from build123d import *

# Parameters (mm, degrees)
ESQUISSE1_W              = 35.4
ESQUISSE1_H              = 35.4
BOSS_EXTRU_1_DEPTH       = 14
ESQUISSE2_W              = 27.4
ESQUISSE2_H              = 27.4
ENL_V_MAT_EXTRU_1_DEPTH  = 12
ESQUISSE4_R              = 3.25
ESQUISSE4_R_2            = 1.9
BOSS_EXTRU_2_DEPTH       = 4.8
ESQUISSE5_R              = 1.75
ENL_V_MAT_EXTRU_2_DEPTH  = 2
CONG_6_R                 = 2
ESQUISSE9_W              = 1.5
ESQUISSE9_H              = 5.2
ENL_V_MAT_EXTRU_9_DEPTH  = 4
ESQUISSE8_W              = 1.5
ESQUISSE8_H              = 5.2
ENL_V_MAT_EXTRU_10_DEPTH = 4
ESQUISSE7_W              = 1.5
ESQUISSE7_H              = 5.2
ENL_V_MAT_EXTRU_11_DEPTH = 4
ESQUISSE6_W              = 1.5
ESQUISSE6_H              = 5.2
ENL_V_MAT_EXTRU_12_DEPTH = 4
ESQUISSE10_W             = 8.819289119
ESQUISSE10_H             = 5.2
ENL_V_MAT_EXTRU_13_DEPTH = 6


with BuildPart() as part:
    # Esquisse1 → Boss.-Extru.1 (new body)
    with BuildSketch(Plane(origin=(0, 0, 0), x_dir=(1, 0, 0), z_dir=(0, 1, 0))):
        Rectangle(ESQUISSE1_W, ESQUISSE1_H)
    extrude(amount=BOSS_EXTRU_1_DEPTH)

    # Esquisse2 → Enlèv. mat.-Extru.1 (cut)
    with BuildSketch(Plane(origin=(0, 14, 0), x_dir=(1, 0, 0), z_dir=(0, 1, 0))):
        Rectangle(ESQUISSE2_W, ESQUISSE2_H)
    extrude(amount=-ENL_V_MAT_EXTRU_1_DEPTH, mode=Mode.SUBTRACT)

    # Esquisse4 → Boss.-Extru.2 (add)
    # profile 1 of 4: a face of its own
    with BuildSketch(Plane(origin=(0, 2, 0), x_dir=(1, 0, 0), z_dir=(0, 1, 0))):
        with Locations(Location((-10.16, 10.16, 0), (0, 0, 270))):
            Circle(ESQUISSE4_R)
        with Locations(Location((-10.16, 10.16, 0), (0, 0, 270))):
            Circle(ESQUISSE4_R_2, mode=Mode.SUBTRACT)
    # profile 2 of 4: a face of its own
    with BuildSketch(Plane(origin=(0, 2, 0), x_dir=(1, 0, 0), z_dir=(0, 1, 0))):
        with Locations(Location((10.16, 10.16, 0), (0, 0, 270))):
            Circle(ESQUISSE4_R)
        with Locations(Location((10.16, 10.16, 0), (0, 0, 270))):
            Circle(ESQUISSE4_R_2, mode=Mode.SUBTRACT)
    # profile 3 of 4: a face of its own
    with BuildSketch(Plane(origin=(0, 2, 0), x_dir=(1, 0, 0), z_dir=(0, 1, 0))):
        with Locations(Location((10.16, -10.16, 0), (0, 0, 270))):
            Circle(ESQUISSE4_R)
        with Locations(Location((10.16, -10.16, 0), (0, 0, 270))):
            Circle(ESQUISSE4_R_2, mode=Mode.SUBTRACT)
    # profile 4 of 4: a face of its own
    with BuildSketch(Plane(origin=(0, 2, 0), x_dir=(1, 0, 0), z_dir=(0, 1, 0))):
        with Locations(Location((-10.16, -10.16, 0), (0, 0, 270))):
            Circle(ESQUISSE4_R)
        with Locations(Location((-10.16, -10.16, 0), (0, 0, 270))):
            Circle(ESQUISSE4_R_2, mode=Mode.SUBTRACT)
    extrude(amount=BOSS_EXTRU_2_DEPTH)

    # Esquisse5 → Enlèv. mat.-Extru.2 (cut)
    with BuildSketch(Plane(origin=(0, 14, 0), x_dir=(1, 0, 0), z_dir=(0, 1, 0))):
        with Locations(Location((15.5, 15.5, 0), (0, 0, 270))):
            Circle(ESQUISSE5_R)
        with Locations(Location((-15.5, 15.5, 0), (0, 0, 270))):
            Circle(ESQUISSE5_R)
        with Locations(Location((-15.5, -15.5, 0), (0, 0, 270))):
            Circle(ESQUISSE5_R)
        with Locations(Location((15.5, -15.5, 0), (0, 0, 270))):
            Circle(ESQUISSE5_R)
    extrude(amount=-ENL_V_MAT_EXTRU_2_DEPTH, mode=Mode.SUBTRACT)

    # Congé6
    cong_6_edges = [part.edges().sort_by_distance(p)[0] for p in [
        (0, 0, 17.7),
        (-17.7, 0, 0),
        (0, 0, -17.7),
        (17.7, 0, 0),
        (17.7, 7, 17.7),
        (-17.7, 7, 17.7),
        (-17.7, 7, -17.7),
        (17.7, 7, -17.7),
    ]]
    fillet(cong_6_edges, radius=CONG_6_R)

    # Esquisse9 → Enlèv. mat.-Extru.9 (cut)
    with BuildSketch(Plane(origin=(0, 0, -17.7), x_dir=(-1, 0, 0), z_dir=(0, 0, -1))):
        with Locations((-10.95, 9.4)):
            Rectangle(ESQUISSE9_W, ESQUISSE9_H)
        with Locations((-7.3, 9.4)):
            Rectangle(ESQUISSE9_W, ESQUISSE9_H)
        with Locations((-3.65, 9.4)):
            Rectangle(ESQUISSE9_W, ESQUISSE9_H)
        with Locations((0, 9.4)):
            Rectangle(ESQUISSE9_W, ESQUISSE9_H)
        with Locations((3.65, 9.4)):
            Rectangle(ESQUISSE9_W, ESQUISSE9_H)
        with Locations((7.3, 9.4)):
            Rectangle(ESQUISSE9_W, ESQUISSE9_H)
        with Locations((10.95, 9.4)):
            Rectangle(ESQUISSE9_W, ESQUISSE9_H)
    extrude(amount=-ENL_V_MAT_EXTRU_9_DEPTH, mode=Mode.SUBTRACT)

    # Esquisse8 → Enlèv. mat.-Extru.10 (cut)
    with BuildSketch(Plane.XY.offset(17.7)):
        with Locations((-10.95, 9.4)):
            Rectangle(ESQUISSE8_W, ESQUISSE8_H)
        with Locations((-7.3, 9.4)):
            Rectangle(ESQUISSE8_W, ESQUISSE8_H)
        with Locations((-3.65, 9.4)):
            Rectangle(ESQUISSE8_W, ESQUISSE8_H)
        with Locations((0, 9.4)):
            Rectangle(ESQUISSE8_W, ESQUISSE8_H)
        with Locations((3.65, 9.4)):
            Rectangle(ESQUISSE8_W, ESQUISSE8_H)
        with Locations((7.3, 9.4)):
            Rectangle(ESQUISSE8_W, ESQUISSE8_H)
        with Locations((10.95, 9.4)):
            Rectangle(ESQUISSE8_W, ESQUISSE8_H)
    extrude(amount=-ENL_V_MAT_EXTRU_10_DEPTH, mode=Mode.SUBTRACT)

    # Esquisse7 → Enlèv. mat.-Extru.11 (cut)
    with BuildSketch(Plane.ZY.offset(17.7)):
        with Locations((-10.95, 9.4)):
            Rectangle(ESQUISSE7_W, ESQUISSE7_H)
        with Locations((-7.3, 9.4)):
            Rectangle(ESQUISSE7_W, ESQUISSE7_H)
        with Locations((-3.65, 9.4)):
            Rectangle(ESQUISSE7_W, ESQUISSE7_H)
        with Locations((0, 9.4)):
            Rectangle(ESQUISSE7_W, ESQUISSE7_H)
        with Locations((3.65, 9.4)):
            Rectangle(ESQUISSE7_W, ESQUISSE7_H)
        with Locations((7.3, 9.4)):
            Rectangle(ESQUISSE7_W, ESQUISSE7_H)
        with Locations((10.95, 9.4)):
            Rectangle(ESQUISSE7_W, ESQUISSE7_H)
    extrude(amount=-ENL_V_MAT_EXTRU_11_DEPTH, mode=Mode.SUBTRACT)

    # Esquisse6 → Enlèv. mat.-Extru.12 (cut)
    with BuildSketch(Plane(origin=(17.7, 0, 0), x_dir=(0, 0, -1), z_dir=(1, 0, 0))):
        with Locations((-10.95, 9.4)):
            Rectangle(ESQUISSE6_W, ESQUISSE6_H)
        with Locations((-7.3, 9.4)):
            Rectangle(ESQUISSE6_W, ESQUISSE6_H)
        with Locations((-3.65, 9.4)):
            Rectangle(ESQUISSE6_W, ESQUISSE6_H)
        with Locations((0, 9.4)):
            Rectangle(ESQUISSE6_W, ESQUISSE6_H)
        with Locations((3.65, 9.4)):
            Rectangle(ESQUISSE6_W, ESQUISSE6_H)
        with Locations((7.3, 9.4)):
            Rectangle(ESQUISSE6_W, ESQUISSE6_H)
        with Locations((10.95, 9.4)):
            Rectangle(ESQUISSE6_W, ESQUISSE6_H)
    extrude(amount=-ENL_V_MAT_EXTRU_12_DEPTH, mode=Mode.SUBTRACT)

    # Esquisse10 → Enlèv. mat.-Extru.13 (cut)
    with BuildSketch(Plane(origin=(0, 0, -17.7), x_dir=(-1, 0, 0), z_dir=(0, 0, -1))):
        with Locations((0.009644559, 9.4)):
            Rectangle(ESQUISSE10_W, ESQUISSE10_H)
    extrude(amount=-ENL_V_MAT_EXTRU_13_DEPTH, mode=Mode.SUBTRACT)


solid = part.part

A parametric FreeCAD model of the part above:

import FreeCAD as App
import Part
import Sketcher
from FreeCAD import Vector
Q = App.Units.Quantity


def edges_at(feature, points):
    """Names of the edges that pass closest to the given points."""
    edges = feature.Shape.Edges
    near = lambda p: min(range(len(edges)), key=lambda i: edges[i].distToShape(Part.Vertex(*p))[0])
    return sorted({f"Edge{near(p) + 1}" for p in points})

doc = App.newDocument("Part")
body = doc.addObject("PartDesign::Body", "Body")

# Sketch on XZ plane
sketch1 = body.newObject("Sketcher::SketchObject", "Sketch")
sketch1.AttachmentSupport = (doc.getObject("XZ_Plane"), [""])
sketch1.MapMode = "FlatFace"
sketch1.addGeometry(Part.LineSegment(Vector(-17.7, -17.7, 0), Vector(-17.7, 17.7, 0)), False)
sketch1.addGeometry(Part.LineSegment(Vector(-17.7, 17.7, 0), Vector(17.7, 17.7, 0)), False)
sketch1.addGeometry(Part.LineSegment(Vector(17.7, 17.7, 0), Vector(17.7, -17.7, 0)), False)
sketch1.addGeometry(Part.LineSegment(Vector(17.7, -17.7, 0), Vector(-17.7, -17.7, 0)), False)
sketch1.addConstraint(Sketcher.Constraint("Coincident", 0, 2, 1, 1))
sketch1.addConstraint(Sketcher.Constraint("Coincident", 1, 2, 2, 1))
sketch1.addConstraint(Sketcher.Constraint("Coincident", 2, 2, 3, 1))
sketch1.addConstraint(Sketcher.Constraint("Coincident", 3, 2, 0, 1))
sketch1.addConstraint(Sketcher.Constraint("Vertical", 0))
sketch1.addConstraint(Sketcher.Constraint("Horizontal", 1))
sketch1.addConstraint(Sketcher.Constraint("Vertical", 2))
sketch1.addConstraint(Sketcher.Constraint("Horizontal", 3))
sketch1.addConstraint(Sketcher.Constraint("Symmetric", 0, 2, 2, 2, -1, 1))
sketch1.addConstraint(Sketcher.Constraint("Equal", 3, 0))
sketch1.addConstraint(Sketcher.Constraint("DistanceX", 1, 1, 1, 2, Q("35.4 mm")))
pad1 = body.newObject("PartDesign::Pad", "Pad")
pad1.Profile = sketch1
pad1.Length = 14
pad1.Reversed = True

# Sketch on XZ plane
sketch2 = body.newObject("Sketcher::SketchObject", "Sketch001")
sketch2.AttachmentSupport = (doc.getObject("XZ_Plane"), [""])
sketch2.MapMode = "FlatFace"
sketch2.AttachmentOffset = App.Placement(Vector(0, 0, -14), App.Rotation())
sketch2.addGeometry(Part.LineSegment(Vector(-13.7, -13.7, 0), Vector(-13.7, 13.7, 0)), False)
sketch2.addGeometry(Part.LineSegment(Vector(-13.7, 13.7, 0), Vector(13.7, 13.7, 0)), False)
sketch2.addGeometry(Part.LineSegment(Vector(13.7, 13.7, 0), Vector(13.7, -13.7, 0)), False)
sketch2.addGeometry(Part.LineSegment(Vector(13.7, -13.7, 0), Vector(-13.7, -13.7, 0)), False)
sketch2.addConstraint(Sketcher.Constraint("Coincident", 0, 2, 1, 1))
sketch2.addConstraint(Sketcher.Constraint("Coincident", 1, 2, 2, 1))
sketch2.addConstraint(Sketcher.Constraint("Coincident", 2, 2, 3, 1))
sketch2.addConstraint(Sketcher.Constraint("Coincident", 3, 2, 0, 1))
sketch2.addConstraint(Sketcher.Constraint("Vertical", 0))
sketch2.addConstraint(Sketcher.Constraint("Horizontal", 1))
sketch2.addConstraint(Sketcher.Constraint("Vertical", 2))
sketch2.addConstraint(Sketcher.Constraint("Horizontal", 3))
sketch2.addConstraint(Sketcher.Constraint("Symmetric", 0, 2, 2, 2, -1, 1))
sketch2.addConstraint(Sketcher.Constraint("Equal", 3, 0))
sketch2.addConstraint(Sketcher.Constraint("DistanceX", 1, 1, 1, 2, Q("27.4 mm")))
pocket1 = body.newObject("PartDesign::Pocket", "Pocket")
pocket1.Profile = sketch2
pocket1.Length = 12
pocket1.Reversed = True

# Sketch on XZ plane
sketch3 = body.newObject("Sketcher::SketchObject", "Sketch002")
sketch3.AttachmentSupport = (doc.getObject("XZ_Plane"), [""])
sketch3.MapMode = "FlatFace"
sketch3.AttachmentOffset = App.Placement(Vector(0, 0, -2), App.Rotation())
sketch3.addGeometry(Part.Circle(Vector(-10.16, -10.16, 0), Vector(0, 0, 1), 3.25), False)
sketch3.addGeometry(Part.Circle(Vector(-10.16, -10.16, 0), Vector(0, 0, 1), 1.9), False)
sketch3.addGeometry(Part.Circle(Vector(10.16, -10.16, 0), Vector(0, 0, 1), 3.25), False)
sketch3.addGeometry(Part.Circle(Vector(10.16, -10.16, 0), Vector(0, 0, 1), 1.9), False)
sketch3.addGeometry(Part.Circle(Vector(10.16, 10.16, 0), Vector(0, 0, 1), 3.25), False)
sketch3.addGeometry(Part.Circle(Vector(10.16, 10.16, 0), Vector(0, 0, 1), 1.9), False)
sketch3.addGeometry(Part.Circle(Vector(-10.16, 10.16, 0), Vector(0, 0, 1), 3.25), False)
sketch3.addGeometry(Part.Circle(Vector(-10.16, 10.16, 0), Vector(0, 0, 1), 1.9), False)
sketch3.addConstraint(Sketcher.Constraint("Coincident", 1, 3, 0, 3))
sketch3.addConstraint(Sketcher.Constraint("Coincident", 3, 3, 2, 3))
sketch3.addConstraint(Sketcher.Constraint("Coincident", 5, 3, 4, 3))
sketch3.addConstraint(Sketcher.Constraint("Coincident", 7, 3, 6, 3))
sketch3.addConstraint(Sketcher.Constraint("Equal", 0, 2))
sketch3.addConstraint(Sketcher.Constraint("Equal", 1, 3))
sketch3.addConstraint(Sketcher.Constraint("Equal", 2, 4))
sketch3.addConstraint(Sketcher.Constraint("Equal", 3, 5))
sketch3.addConstraint(Sketcher.Constraint("Equal", 4, 6))
sketch3.addConstraint(Sketcher.Constraint("Equal", 5, 7))
sketch3.addConstraint(Sketcher.Constraint("Symmetric", 0, 3, 4, 3, -1, 1))
sketch3.addConstraint(Sketcher.Constraint("Symmetric", 2, 3, 6, 3, -1, 1))
sketch3.addConstraint(Sketcher.Constraint("Symmetric", 0, 3, 2, 3, -2))
sketch3.addConstraint(Sketcher.Constraint("Diameter", 0, Q("6.5 mm")))
sketch3.addConstraint(Sketcher.Constraint("Diameter", 1, Q("3.8 mm")))
sketch3.addConstraint(Sketcher.Constraint("DistanceX", 0, 3, -1, 1, Q("10.16 mm")))
sketch3.addConstraint(Sketcher.Constraint("DistanceY", 0, 3, -1, 1, Q("10.16 mm")))
pad2 = body.newObject("PartDesign::Pad", "Pad001")
pad2.Profile = sketch3
pad2.Length = 4.8
pad2.Reversed = True

# Sketch on XZ plane
sketch4 = body.newObject("Sketcher::SketchObject", "Sketch003")
sketch4.AttachmentSupport = (doc.getObject("XZ_Plane"), [""])
sketch4.MapMode = "FlatFace"
sketch4.AttachmentOffset = App.Placement(Vector(0, 0, -14), App.Rotation())
sketch4.addGeometry(Part.Circle(Vector(15.5, -15.5, 0), Vector(0, 0, 1), 1.75), False)
sketch4.addGeometry(Part.Circle(Vector(-15.5, -15.5, 0), Vector(0, 0, 1), 1.75), False)
sketch4.addGeometry(Part.Circle(Vector(-15.5, 15.5, 0), Vector(0, 0, 1), 1.75), False)
sketch4.addGeometry(Part.Circle(Vector(15.5, 15.5, 0), Vector(0, 0, 1), 1.75), False)
sketch4.addConstraint(Sketcher.Constraint("Equal", 0, 1))
sketch4.addConstraint(Sketcher.Constraint("Equal", 1, 2))
sketch4.addConstraint(Sketcher.Constraint("Equal", 2, 3))
sketch4.addConstraint(Sketcher.Constraint("Symmetric", 0, 3, 2, 3, -1, 1))
sketch4.addConstraint(Sketcher.Constraint("Symmetric", 1, 3, 3, 3, -1, 1))
sketch4.addConstraint(Sketcher.Constraint("Symmetric", 0, 3, 1, 3, -2))
sketch4.addConstraint(Sketcher.Constraint("Diameter", 0, Q("3.5 mm")))
sketch4.addConstraint(Sketcher.Constraint("DistanceX", 1, 3, 0, 3, Q("31 mm")))
sketch4.addConstraint(Sketcher.Constraint("DistanceY", 1, 3, 2, 3, Q("31 mm")))
pocket2 = body.newObject("PartDesign::Pocket", "Pocket001")
pocket2.Profile = sketch4
pocket2.Length = 2
pocket2.Reversed = True
doc.recompute()

fillet = body.newObject("PartDesign::Fillet", "Fillet")
fillet.Base = (pocket2, edges_at(pocket2, [
    (0, 0, 17.7),
    (-17.7, 0, 0),
    (0, 0, -17.7),
    (17.7, 0, 0),
    (17.7, 7, 17.7),
    (-17.7, 7, 17.7),
    (-17.7, 7, -17.7),
    (17.7, 7, -17.7),
]))
fillet.Radius = 2

# Sketch on XY plane
sketch5 = body.newObject("Sketcher::SketchObject", "Sketch004")
sketch5.AttachmentSupport = (doc.getObject("XY_Plane"), [""])
sketch5.MapMode = "FlatFace"
sketch5.AttachmentOffset = App.Placement(Vector(0, 0, -17.7), App.Rotation())
sketch5.addGeometry(Part.LineSegment(Vector(11.7, 12, 0), Vector(11.7, 6.8, 0)), False)
sketch5.addGeometry(Part.LineSegment(Vector(11.7, 6.8, 0), Vector(10.2, 6.8, 0)), False)
sketch5.addGeometry(Part.LineSegment(Vector(10.2, 6.8, 0), Vector(10.2, 12, 0)), False)
sketch5.addGeometry(Part.LineSegment(Vector(10.2, 12, 0), Vector(11.7, 12, 0)), False)
sketch5.addGeometry(Part.LineSegment(Vector(8.05, 12, 0), Vector(8.05, 6.8, 0)), False)
sketch5.addGeometry(Part.LineSegment(Vector(8.05, 6.8, 0), Vector(6.55, 6.8, 0)), False)
sketch5.addGeometry(Part.LineSegment(Vector(6.55, 6.8, 0), Vector(6.55, 12, 0)), False)
sketch5.addGeometry(Part.LineSegment(Vector(6.55, 12, 0), Vector(8.05, 12, 0)), False)
sketch5.addGeometry(Part.LineSegment(Vector(4.4, 12, 0), Vector(4.4, 6.8, 0)), False)
sketch5.addGeometry(Part.LineSegment(Vector(4.4, 6.8, 0), Vector(2.9, 6.8, 0)), False)
sketch5.addGeometry(Part.LineSegment(Vector(2.9, 6.8, 0), Vector(2.9, 12, 0)), False)
sketch5.addGeometry(Part.LineSegment(Vector(2.9, 12, 0), Vector(4.4, 12, 0)), False)
sketch5.addGeometry(Part.LineSegment(Vector(0.75, 12, 0), Vector(0.75, 6.8, 0)), False)
sketch5.addGeometry(Part.LineSegment(Vector(0.75, 6.8, 0), Vector(-0.75, 6.8, 0)), False)
sketch5.addGeometry(Part.LineSegment(Vector(-0.75, 6.8, 0), Vector(-0.75, 12, 0)), False)
sketch5.addGeometry(Part.LineSegment(Vector(-0.75, 12, 0), Vector(0.75, 12, 0)), False)
sketch5.addGeometry(Part.LineSegment(Vector(-2.9, 12, 0), Vector(-2.9, 6.8, 0)), False)
sketch5.addGeometry(Part.LineSegment(Vector(-2.9, 6.8, 0), Vector(-4.4, 6.8, 0)), False)
sketch5.addGeometry(Part.LineSegment(Vector(-4.4, 6.8, 0), Vector(-4.4, 12, 0)), False)
sketch5.addGeometry(Part.LineSegment(Vector(-4.4, 12, 0), Vector(-2.9, 12, 0)), False)
sketch5.addGeometry(Part.LineSegment(Vector(-6.55, 12, 0), Vector(-6.55, 6.8, 0)), False)
sketch5.addGeometry(Part.LineSegment(Vector(-6.55, 6.8, 0), Vector(-8.05, 6.8, 0)), False)
sketch5.addGeometry(Part.LineSegment(Vector(-8.05, 6.8, 0), Vector(-8.05, 12, 0)), False)
sketch5.addGeometry(Part.LineSegment(Vector(-8.05, 12, 0), Vector(-6.55, 12, 0)), False)
sketch5.addGeometry(Part.LineSegment(Vector(-10.2, 12, 0), Vector(-10.2, 6.8, 0)), False)
sketch5.addGeometry(Part.LineSegment(Vector(-10.2, 6.8, 0), Vector(-11.7, 6.8, 0)), False)
sketch5.addGeometry(Part.LineSegment(Vector(-11.7, 6.8, 0), Vector(-11.7, 12, 0)), False)
sketch5.addGeometry(Part.LineSegment(Vector(-11.7, 12, 0), Vector(-10.2, 12, 0)), False)
sketch5.addConstraint(Sketcher.Constraint("Coincident", 0, 2, 1, 1))
sketch5.addConstraint(Sketcher.Constraint("Coincident", 1, 2, 2, 1))
sketch5.addConstraint(Sketcher.Constraint("Coincident", 2, 2, 3, 1))
sketch5.addConstraint(Sketcher.Constraint("Coincident", 3, 2, 0, 1))
sketch5.addConstraint(Sketcher.Constraint("Coincident", 4, 2, 5, 1))
sketch5.addConstraint(Sketcher.Constraint("Coincident", 5, 2, 6, 1))
sketch5.addConstraint(Sketcher.Constraint("Coincident", 6, 2, 7, 1))
sketch5.addConstraint(Sketcher.Constraint("Coincident", 7, 2, 4, 1))
sketch5.addConstraint(Sketcher.Constraint("Coincident", 8, 2, 9, 1))
sketch5.addConstraint(Sketcher.Constraint("Coincident", 9, 2, 10, 1))
sketch5.addConstraint(Sketcher.Constraint("Coincident", 10, 2, 11, 1))
sketch5.addConstraint(Sketcher.Constraint("Coincident", 11, 2, 8, 1))
sketch5.addConstraint(Sketcher.Constraint("Coincident", 12, 2, 13, 1))
sketch5.addConstraint(Sketcher.Constraint("Coincident", 13, 2, 14, 1))
sketch5.addConstraint(Sketcher.Constraint("Coincident", 14, 2, 15, 1))
sketch5.addConstraint(Sketcher.Constraint("Coincident", 15, 2, 12, 1))
sketch5.addConstraint(Sketcher.Constraint("Coincident", 16, 2, 17, 1))
sketch5.addConstraint(Sketcher.Constraint("Coincident", 17, 2, 18, 1))
sketch5.addConstraint(Sketcher.Constraint("Coincident", 18, 2, 19, 1))
sketch5.addConstraint(Sketcher.Constraint("Coincident", 19, 2, 16, 1))
sketch5.addConstraint(Sketcher.Constraint("Coincident", 20, 2, 21, 1))
sketch5.addConstraint(Sketcher.Constraint("Coincident", 21, 2, 22, 1))
sketch5.addConstraint(Sketcher.Constraint("Coincident", 22, 2, 23, 1))
sketch5.addConstraint(Sketcher.Constraint("Coincident", 23, 2, 20, 1))
sketch5.addConstraint(Sketcher.Constraint("Coincident", 24, 2, 25, 1))
sketch5.addConstraint(Sketcher.Constraint("Coincident", 25, 2, 26, 1))
sketch5.addConstraint(Sketcher.Constraint("Coincident", 26, 2, 27, 1))
sketch5.addConstraint(Sketcher.Constraint("Coincident", 27, 2, 24, 1))
sketch5.addConstraint(Sketcher.Constraint("Vertical", 0))
sketch5.addConstraint(Sketcher.Constraint("Horizontal", 1))
sketch5.addConstraint(Sketcher.Constraint("Vertical", 2))
sketch5.addConstraint(Sketcher.Constraint("Horizontal", 3))
sketch5.addConstraint(Sketcher.Constraint("Vertical", 4))
sketch5.addConstraint(Sketcher.Constraint("Horizontal", 5))
sketch5.addConstraint(Sketcher.Constraint("Vertical", 6))
sketch5.addConstraint(Sketcher.Constraint("Horizontal", 7))
sketch5.addConstraint(Sketcher.Constraint("Vertical", 8))
sketch5.addConstraint(Sketcher.Constraint("Horizontal", 9))
sketch5.addConstraint(Sketcher.Constraint("Vertical", 10))
sketch5.addConstraint(Sketcher.Constraint("Horizontal", 11))
sketch5.addConstraint(Sketcher.Constraint("Vertical", 12))
sketch5.addConstraint(Sketcher.Constraint("Horizontal", 13))
sketch5.addConstraint(Sketcher.Constraint("Vertical", 14))
sketch5.addConstraint(Sketcher.Constraint("Horizontal", 15))
sketch5.addConstraint(Sketcher.Constraint("Vertical", 16))
sketch5.addConstraint(Sketcher.Constraint("Horizontal", 17))
sketch5.addConstraint(Sketcher.Constraint("Vertical", 18))
sketch5.addConstraint(Sketcher.Constraint("Horizontal", 19))
sketch5.addConstraint(Sketcher.Constraint("Vertical", 20))
sketch5.addConstraint(Sketcher.Constraint("Horizontal", 21))
sketch5.addConstraint(Sketcher.Constraint("Vertical", 22))
sketch5.addConstraint(Sketcher.Constraint("Horizontal", 23))
sketch5.addConstraint(Sketcher.Constraint("Vertical", 24))
sketch5.addConstraint(Sketcher.Constraint("Horizontal", 25))
sketch5.addConstraint(Sketcher.Constraint("Vertical", 26))
sketch5.addConstraint(Sketcher.Constraint("Horizontal", 27))
sketch5.addConstraint(Sketcher.Constraint("Symmetric", 9, 2, 16, 2, -2))
sketch5.addConstraint(Sketcher.Constraint("Symmetric", 11, 2, 18, 2, -2))
sketch5.addConstraint(Sketcher.Constraint("Symmetric", 5, 2, 20, 2, -2))
sketch5.addConstraint(Sketcher.Constraint("Symmetric", 7, 2, 22, 2, -2))
sketch5.addConstraint(Sketcher.Constraint("Symmetric", 1, 2, 24, 2, -2))
sketch5.addConstraint(Sketcher.Constraint("Symmetric", 3, 2, 26, 2, -2))
sketch5.addConstraint(Sketcher.Constraint("Horizontal", 1, 2, 4, 2))
sketch5.addConstraint(Sketcher.Constraint("Horizontal", 3, 2, 6, 2))
sketch5.addConstraint(Sketcher.Constraint("Horizontal", 5, 2, 8, 2))
sketch5.addConstraint(Sketcher.Constraint("Horizontal", 7, 2, 10, 2))
sketch5.addConstraint(Sketcher.Constraint("Horizontal", 9, 2, 12, 2))
sketch5.addConstraint(Sketcher.Constraint("Horizontal", 11, 2, 14, 2))
sketch5.addConstraint(Sketcher.Constraint("Equal", 3, 5))
sketch5.addConstraint(Sketcher.Constraint("Equal", 7, 9))
sketch5.addConstraint(Sketcher.Constraint("Equal", 11, 13))
sketch5.addConstraint(Sketcher.Constraint("DistanceX", 1, 2, 1, 1, Q("1.5 mm")))
sketch5.addConstraint(Sketcher.Constraint("DistanceY", 0, 2, 0, 1, Q("5.2 mm")))
sketch5.addConstraint(Sketcher.Constraint("DistanceY", -1, 1, 2, 2, Q("12 mm")))
sketch5.addConstraint(Sketcher.Constraint("DistanceX", -1, 1, 0, 2, Q("11.7 mm")))
sketch5.addConstraint(Sketcher.Constraint("DistanceX", -1, 1, 8, 2, Q("4.4 mm")))
sketch5.addConstraint(Sketcher.Constraint("DistanceX", 12, 2, 5, 2, Q("5.8 mm")))
sketch5.addConstraint(Sketcher.Constraint("DistanceX", 20, 2, 13, 2, Q("5.8 mm")))
pocket3 = body.newObject("PartDesign::Pocket", "Pocket002")
pocket3.Profile = sketch5
pocket3.Length = 4
pocket3.Reversed = True

# Sketch on XY plane
sketch6 = body.newObject("Sketcher::SketchObject", "Sketch005")
sketch6.AttachmentSupport = (doc.getObject("XY_Plane"), [""])
sketch6.MapMode = "FlatFace"
sketch6.AttachmentOffset = App.Placement(Vector(0, 0, 17.7), App.Rotation())
sketch6.addGeometry(Part.LineSegment(Vector(-11.7, 12, 0), Vector(-11.7, 6.8, 0)), False)
sketch6.addGeometry(Part.LineSegment(Vector(-11.7, 6.8, 0), Vector(-10.2, 6.8, 0)), False)
sketch6.addGeometry(Part.LineSegment(Vector(-10.2, 6.8, 0), Vector(-10.2, 12, 0)), False)
sketch6.addGeometry(Part.LineSegment(Vector(-10.2, 12, 0), Vector(-11.7, 12, 0)), False)
sketch6.addGeometry(Part.LineSegment(Vector(-8.05, 12, 0), Vector(-8.05, 6.8, 0)), False)
sketch6.addGeometry(Part.LineSegment(Vector(-8.05, 6.8, 0), Vector(-6.55, 6.8, 0)), False)
sketch6.addGeometry(Part.LineSegment(Vector(-6.55, 6.8, 0), Vector(-6.55, 12, 0)), False)
sketch6.addGeometry(Part.LineSegment(Vector(-6.55, 12, 0), Vector(-8.05, 12, 0)), False)
sketch6.addGeometry(Part.LineSegment(Vector(-4.4, 12, 0), Vector(-4.4, 6.8, 0)), False)
sketch6.addGeometry(Part.LineSegment(Vector(-4.4, 6.8, 0), Vector(-2.9, 6.8, 0)), False)
sketch6.addGeometry(Part.LineSegment(Vector(-2.9, 6.8, 0), Vector(-2.9, 12, 0)), False)
sketch6.addGeometry(Part.LineSegment(Vector(-2.9, 12, 0), Vector(-4.4, 12, 0)), False)
sketch6.addGeometry(Part.LineSegment(Vector(-0.75, 12, 0), Vector(-0.75, 6.8, 0)), False)
sketch6.addGeometry(Part.LineSegment(Vector(-0.75, 6.8, 0), Vector(0.75, 6.8, 0)), False)
sketch6.addGeometry(Part.LineSegment(Vector(0.75, 6.8, 0), Vector(0.75, 12, 0)), False)
sketch6.addGeometry(Part.LineSegment(Vector(0.75, 12, 0), Vector(-0.75, 12, 0)), False)
sketch6.addGeometry(Part.LineSegment(Vector(2.9, 12, 0), Vector(2.9, 6.8, 0)), False)
sketch6.addGeometry(Part.LineSegment(Vector(2.9, 6.8, 0), Vector(4.4, 6.8, 0)), False)
sketch6.addGeometry(Part.LineSegment(Vector(4.4, 6.8, 0), Vector(4.4, 12, 0)), False)
sketch6.addGeometry(Part.LineSegment(Vector(4.4, 12, 0), Vector(2.9, 12, 0)), False)
sketch6.addGeometry(Part.LineSegment(Vector(6.55, 12, 0), Vector(6.55, 6.8, 0)), False)
sketch6.addGeometry(Part.LineSegment(Vector(6.55, 6.8, 0), Vector(8.05, 6.8, 0)), False)
sketch6.addGeometry(Part.LineSegment(Vector(8.05, 6.8, 0), Vector(8.05, 12, 0)), False)
sketch6.addGeometry(Part.LineSegment(Vector(8.05, 12, 0), Vector(6.55, 12, 0)), False)
sketch6.addGeometry(Part.LineSegment(Vector(10.2, 12, 0), Vector(10.2, 6.8, 0)), False)
sketch6.addGeometry(Part.LineSegment(Vector(10.2, 6.8, 0), Vector(11.7, 6.8, 0)), False)
sketch6.addGeometry(Part.LineSegment(Vector(11.7, 6.8, 0), Vector(11.7, 12, 0)), False)
sketch6.addGeometry(Part.LineSegment(Vector(11.7, 12, 0), Vector(10.2, 12, 0)), False)
sketch6.addConstraint(Sketcher.Constraint("Coincident", 0, 2, 1, 1))
sketch6.addConstraint(Sketcher.Constraint("Coincident", 1, 2, 2, 1))
sketch6.addConstraint(Sketcher.Constraint("Coincident", 2, 2, 3, 1))
sketch6.addConstraint(Sketcher.Constraint("Coincident", 3, 2, 0, 1))
sketch6.addConstraint(Sketcher.Constraint("Coincident", 4, 2, 5, 1))
sketch6.addConstraint(Sketcher.Constraint("Coincident", 5, 2, 6, 1))
sketch6.addConstraint(Sketcher.Constraint("Coincident", 6, 2, 7, 1))
sketch6.addConstraint(Sketcher.Constraint("Coincident", 7, 2, 4, 1))
sketch6.addConstraint(Sketcher.Constraint("Coincident", 8, 2, 9, 1))
sketch6.addConstraint(Sketcher.Constraint("Coincident", 9, 2, 10, 1))
sketch6.addConstraint(Sketcher.Constraint("Coincident", 10, 2, 11, 1))
sketch6.addConstraint(Sketcher.Constraint("Coincident", 11, 2, 8, 1))
sketch6.addConstraint(Sketcher.Constraint("Coincident", 12, 2, 13, 1))
sketch6.addConstraint(Sketcher.Constraint("Coincident", 13, 2, 14, 1))
sketch6.addConstraint(Sketcher.Constraint("Coincident", 14, 2, 15, 1))
sketch6.addConstraint(Sketcher.Constraint("Coincident", 15, 2, 12, 1))
sketch6.addConstraint(Sketcher.Constraint("Coincident", 16, 2, 17, 1))
sketch6.addConstraint(Sketcher.Constraint("Coincident", 17, 2, 18, 1))
sketch6.addConstraint(Sketcher.Constraint("Coincident", 18, 2, 19, 1))
sketch6.addConstraint(Sketcher.Constraint("Coincident", 19, 2, 16, 1))
sketch6.addConstraint(Sketcher.Constraint("Coincident", 20, 2, 21, 1))
sketch6.addConstraint(Sketcher.Constraint("Coincident", 21, 2, 22, 1))
sketch6.addConstraint(Sketcher.Constraint("Coincident", 22, 2, 23, 1))
sketch6.addConstraint(Sketcher.Constraint("Coincident", 23, 2, 20, 1))
sketch6.addConstraint(Sketcher.Constraint("Coincident", 24, 2, 25, 1))
sketch6.addConstraint(Sketcher.Constraint("Coincident", 25, 2, 26, 1))
sketch6.addConstraint(Sketcher.Constraint("Coincident", 26, 2, 27, 1))
sketch6.addConstraint(Sketcher.Constraint("Coincident", 27, 2, 24, 1))
sketch6.addConstraint(Sketcher.Constraint("Vertical", 0))
sketch6.addConstraint(Sketcher.Constraint("Horizontal", 1))
sketch6.addConstraint(Sketcher.Constraint("Vertical", 2))
sketch6.addConstraint(Sketcher.Constraint("Horizontal", 3))
sketch6.addConstraint(Sketcher.Constraint("Vertical", 4))
sketch6.addConstraint(Sketcher.Constraint("Horizontal", 5))
sketch6.addConstraint(Sketcher.Constraint("Vertical", 6))
sketch6.addConstraint(Sketcher.Constraint("Horizontal", 7))
sketch6.addConstraint(Sketcher.Constraint("Vertical", 8))
sketch6.addConstraint(Sketcher.Constraint("Horizontal", 9))
sketch6.addConstraint(Sketcher.Constraint("Vertical", 10))
sketch6.addConstraint(Sketcher.Constraint("Horizontal", 11))
sketch6.addConstraint(Sketcher.Constraint("Vertical", 12))
sketch6.addConstraint(Sketcher.Constraint("Horizontal", 13))
sketch6.addConstraint(Sketcher.Constraint("Vertical", 14))
sketch6.addConstraint(Sketcher.Constraint("Horizontal", 15))
sketch6.addConstraint(Sketcher.Constraint("Vertical", 16))
sketch6.addConstraint(Sketcher.Constraint("Horizontal", 17))
sketch6.addConstraint(Sketcher.Constraint("Vertical", 18))
sketch6.addConstraint(Sketcher.Constraint("Horizontal", 19))
sketch6.addConstraint(Sketcher.Constraint("Vertical", 20))
sketch6.addConstraint(Sketcher.Constraint("Horizontal", 21))
sketch6.addConstraint(Sketcher.Constraint("Vertical", 22))
sketch6.addConstraint(Sketcher.Constraint("Horizontal", 23))
sketch6.addConstraint(Sketcher.Constraint("Vertical", 24))
sketch6.addConstraint(Sketcher.Constraint("Horizontal", 25))
sketch6.addConstraint(Sketcher.Constraint("Vertical", 26))
sketch6.addConstraint(Sketcher.Constraint("Horizontal", 27))
sketch6.addConstraint(Sketcher.Constraint("Symmetric", 9, 2, 16, 2, -2))
sketch6.addConstraint(Sketcher.Constraint("Symmetric", 11, 2, 18, 2, -2))
sketch6.addConstraint(Sketcher.Constraint("Symmetric", 5, 2, 20, 2, -2))
sketch6.addConstraint(Sketcher.Constraint("Symmetric", 7, 2, 22, 2, -2))
sketch6.addConstraint(Sketcher.Constraint("Symmetric", 1, 2, 24, 2, -2))
sketch6.addConstraint(Sketcher.Constraint("Symmetric", 3, 2, 26, 2, -2))
sketch6.addConstraint(Sketcher.Constraint("Horizontal", 1, 2, 4, 2))
sketch6.addConstraint(Sketcher.Constraint("Horizontal", 3, 2, 6, 2))
sketch6.addConstraint(Sketcher.Constraint("Horizontal", 5, 2, 8, 2))
sketch6.addConstraint(Sketcher.Constraint("Horizontal", 7, 2, 10, 2))
sketch6.addConstraint(Sketcher.Constraint("Horizontal", 9, 2, 12, 2))
sketch6.addConstraint(Sketcher.Constraint("Horizontal", 11, 2, 14, 2))
sketch6.addConstraint(Sketcher.Constraint("Equal", 3, 5))
sketch6.addConstraint(Sketcher.Constraint("Equal", 7, 9))
sketch6.addConstraint(Sketcher.Constraint("Equal", 11, 13))
sketch6.addConstraint(Sketcher.Constraint("DistanceX", 1, 1, 1, 2, Q("1.5 mm")))
sketch6.addConstraint(Sketcher.Constraint("DistanceY", 0, 2, 0, 1, Q("5.2 mm")))
sketch6.addConstraint(Sketcher.Constraint("DistanceY", -1, 1, 2, 2, Q("12 mm")))
sketch6.addConstraint(Sketcher.Constraint("DistanceX", 0, 2, -1, 1, Q("11.7 mm")))
sketch6.addConstraint(Sketcher.Constraint("DistanceX", 8, 2, -1, 1, Q("4.4 mm")))
sketch6.addConstraint(Sketcher.Constraint("DistanceX", 5, 2, 12, 2, Q("5.8 mm")))
sketch6.addConstraint(Sketcher.Constraint("DistanceX", 13, 2, 20, 2, Q("5.8 mm")))
pocket4 = body.newObject("PartDesign::Pocket", "Pocket003")
pocket4.Profile = sketch6
pocket4.Length = 4

# Sketch on YZ plane
sketch7 = body.newObject("Sketcher::SketchObject", "Sketch006")
sketch7.AttachmentSupport = (doc.getObject("YZ_Plane"), [""])
sketch7.MapMode = "FlatFace"
sketch7.AttachmentOffset = App.Placement(Vector(0, 0, -17.7), App.Rotation())
sketch7.addGeometry(Part.LineSegment(Vector(12, -11.7, 0), Vector(6.8, -11.7, 0)), False)
sketch7.addGeometry(Part.LineSegment(Vector(6.8, -11.7, 0), Vector(6.8, -10.2, 0)), False)
sketch7.addGeometry(Part.LineSegment(Vector(6.8, -10.2, 0), Vector(12, -10.2, 0)), False)
sketch7.addGeometry(Part.LineSegment(Vector(12, -10.2, 0), Vector(12, -11.7, 0)), False)
sketch7.addGeometry(Part.LineSegment(Vector(12, -8.05, 0), Vector(6.8, -8.05, 0)), False)
sketch7.addGeometry(Part.LineSegment(Vector(6.8, -8.05, 0), Vector(6.8, -6.55, 0)), False)
sketch7.addGeometry(Part.LineSegment(Vector(6.8, -6.55, 0), Vector(12, -6.55, 0)), False)
sketch7.addGeometry(Part.LineSegment(Vector(12, -6.55, 0), Vector(12, -8.05, 0)), False)
sketch7.addGeometry(Part.LineSegment(Vector(12, -4.4, 0), Vector(6.8, -4.4, 0)), False)
sketch7.addGeometry(Part.LineSegment(Vector(6.8, -4.4, 0), Vector(6.8, -2.9, 0)), False)
sketch7.addGeometry(Part.LineSegment(Vector(6.8, -2.9, 0), Vector(12, -2.9, 0)), False)
sketch7.addGeometry(Part.LineSegment(Vector(12, -2.9, 0), Vector(12, -4.4, 0)), False)
sketch7.addGeometry(Part.LineSegment(Vector(12, -0.75, 0), Vector(6.8, -0.75, 0)), False)
sketch7.addGeometry(Part.LineSegment(Vector(6.8, -0.75, 0), Vector(6.8, 0.75, 0)), False)
sketch7.addGeometry(Part.LineSegment(Vector(6.8, 0.75, 0), Vector(12, 0.75, 0)), False)
sketch7.addGeometry(Part.LineSegment(Vector(12, 0.75, 0), Vector(12, -0.75, 0)), False)
sketch7.addGeometry(Part.LineSegment(Vector(12, 2.9, 0), Vector(6.8, 2.9, 0)), False)
sketch7.addGeometry(Part.LineSegment(Vector(6.8, 2.9, 0), Vector(6.8, 4.4, 0)), False)
sketch7.addGeometry(Part.LineSegment(Vector(6.8, 4.4, 0), Vector(12, 4.4, 0)), False)
sketch7.addGeometry(Part.LineSegment(Vector(12, 4.4, 0), Vector(12, 2.9, 0)), False)
sketch7.addGeometry(Part.LineSegment(Vector(12, 6.55, 0), Vector(6.8, 6.55, 0)), False)
sketch7.addGeometry(Part.LineSegment(Vector(6.8, 6.55, 0), Vector(6.8, 8.05, 0)), False)
sketch7.addGeometry(Part.LineSegment(Vector(6.8, 8.05, 0), Vector(12, 8.05, 0)), False)
sketch7.addGeometry(Part.LineSegment(Vector(12, 8.05, 0), Vector(12, 6.55, 0)), False)
sketch7.addGeometry(Part.LineSegment(Vector(12, 10.2, 0), Vector(6.8, 10.2, 0)), False)
sketch7.addGeometry(Part.LineSegment(Vector(6.8, 10.2, 0), Vector(6.8, 11.7, 0)), False)
sketch7.addGeometry(Part.LineSegment(Vector(6.8, 11.7, 0), Vector(12, 11.7, 0)), False)
sketch7.addGeometry(Part.LineSegment(Vector(12, 11.7, 0), Vector(12, 10.2, 0)), False)
sketch7.addConstraint(Sketcher.Constraint("Coincident", 0, 2, 1, 1))
sketch7.addConstraint(Sketcher.Constraint("Coincident", 1, 2, 2, 1))
sketch7.addConstraint(Sketcher.Constraint("Coincident", 2, 2, 3, 1))
sketch7.addConstraint(Sketcher.Constraint("Coincident", 3, 2, 0, 1))
sketch7.addConstraint(Sketcher.Constraint("Coincident", 4, 2, 5, 1))
sketch7.addConstraint(Sketcher.Constraint("Coincident", 5, 2, 6, 1))
sketch7.addConstraint(Sketcher.Constraint("Coincident", 6, 2, 7, 1))
sketch7.addConstraint(Sketcher.Constraint("Coincident", 7, 2, 4, 1))
sketch7.addConstraint(Sketcher.Constraint("Coincident", 8, 2, 9, 1))
sketch7.addConstraint(Sketcher.Constraint("Coincident", 9, 2, 10, 1))
sketch7.addConstraint(Sketcher.Constraint("Coincident", 10, 2, 11, 1))
sketch7.addConstraint(Sketcher.Constraint("Coincident", 11, 2, 8, 1))
sketch7.addConstraint(Sketcher.Constraint("Coincident", 12, 2, 13, 1))
sketch7.addConstraint(Sketcher.Constraint("Coincident", 13, 2, 14, 1))
sketch7.addConstraint(Sketcher.Constraint("Coincident", 14, 2, 15, 1))
sketch7.addConstraint(Sketcher.Constraint("Coincident", 15, 2, 12, 1))
sketch7.addConstraint(Sketcher.Constraint("Coincident", 16, 2, 17, 1))
sketch7.addConstraint(Sketcher.Constraint("Coincident", 17, 2, 18, 1))
sketch7.addConstraint(Sketcher.Constraint("Coincident", 18, 2, 19, 1))
sketch7.addConstraint(Sketcher.Constraint("Coincident", 19, 2, 16, 1))
sketch7.addConstraint(Sketcher.Constraint("Coincident", 20, 2, 21, 1))
sketch7.addConstraint(Sketcher.Constraint("Coincident", 21, 2, 22, 1))
sketch7.addConstraint(Sketcher.Constraint("Coincident", 22, 2, 23, 1))
sketch7.addConstraint(Sketcher.Constraint("Coincident", 23, 2, 20, 1))
sketch7.addConstraint(Sketcher.Constraint("Coincident", 24, 2, 25, 1))
sketch7.addConstraint(Sketcher.Constraint("Coincident", 25, 2, 26, 1))
sketch7.addConstraint(Sketcher.Constraint("Coincident", 26, 2, 27, 1))
sketch7.addConstraint(Sketcher.Constraint("Coincident", 27, 2, 24, 1))
sketch7.addConstraint(Sketcher.Constraint("Horizontal", 0))
sketch7.addConstraint(Sketcher.Constraint("Vertical", 1))
sketch7.addConstraint(Sketcher.Constraint("Horizontal", 2))
sketch7.addConstraint(Sketcher.Constraint("Vertical", 3))
sketch7.addConstraint(Sketcher.Constraint("Horizontal", 4))
sketch7.addConstraint(Sketcher.Constraint("Vertical", 5))
sketch7.addConstraint(Sketcher.Constraint("Horizontal", 6))
sketch7.addConstraint(Sketcher.Constraint("Vertical", 7))
sketch7.addConstraint(Sketcher.Constraint("Horizontal", 8))
sketch7.addConstraint(Sketcher.Constraint("Vertical", 9))
sketch7.addConstraint(Sketcher.Constraint("Horizontal", 10))
sketch7.addConstraint(Sketcher.Constraint("Vertical", 11))
sketch7.addConstraint(Sketcher.Constraint("Horizontal", 12))
sketch7.addConstraint(Sketcher.Constraint("Vertical", 13))
sketch7.addConstraint(Sketcher.Constraint("Horizontal", 14))
sketch7.addConstraint(Sketcher.Constraint("Vertical", 15))
sketch7.addConstraint(Sketcher.Constraint("Horizontal", 16))
sketch7.addConstraint(Sketcher.Constraint("Vertical", 17))
sketch7.addConstraint(Sketcher.Constraint("Horizontal", 18))
sketch7.addConstraint(Sketcher.Constraint("Vertical", 19))
sketch7.addConstraint(Sketcher.Constraint("Horizontal", 20))
sketch7.addConstraint(Sketcher.Constraint("Vertical", 21))
sketch7.addConstraint(Sketcher.Constraint("Horizontal", 22))
sketch7.addConstraint(Sketcher.Constraint("Vertical", 23))
sketch7.addConstraint(Sketcher.Constraint("Horizontal", 24))
sketch7.addConstraint(Sketcher.Constraint("Vertical", 25))
sketch7.addConstraint(Sketcher.Constraint("Horizontal", 26))
sketch7.addConstraint(Sketcher.Constraint("Vertical", 27))
sketch7.addConstraint(Sketcher.Constraint("Symmetric", 9, 2, 16, 2, -1))
sketch7.addConstraint(Sketcher.Constraint("Symmetric", 11, 2, 18, 2, -1))
sketch7.addConstraint(Sketcher.Constraint("Symmetric", 5, 2, 20, 2, -1))
sketch7.addConstraint(Sketcher.Constraint("Symmetric", 7, 2, 22, 2, -1))
sketch7.addConstraint(Sketcher.Constraint("Symmetric", 1, 2, 24, 2, -1))
sketch7.addConstraint(Sketcher.Constraint("Symmetric", 3, 2, 26, 2, -1))
sketch7.addConstraint(Sketcher.Constraint("Vertical", 1, 2, 4, 2))
sketch7.addConstraint(Sketcher.Constraint("Vertical", 3, 2, 6, 2))
sketch7.addConstraint(Sketcher.Constraint("Vertical", 5, 2, 8, 2))
sketch7.addConstraint(Sketcher.Constraint("Vertical", 7, 2, 10, 2))
sketch7.addConstraint(Sketcher.Constraint("Vertical", 9, 2, 12, 2))
sketch7.addConstraint(Sketcher.Constraint("Vertical", 11, 2, 14, 2))
sketch7.addConstraint(Sketcher.Constraint("Equal", 3, 5))
sketch7.addConstraint(Sketcher.Constraint("Equal", 7, 9))
sketch7.addConstraint(Sketcher.Constraint("Equal", 11, 13))
sketch7.addConstraint(Sketcher.Constraint("DistanceX", 0, 2, 0, 1, Q("5.2 mm")))
sketch7.addConstraint(Sketcher.Constraint("DistanceY", 1, 1, 1, 2, Q("1.5 mm")))
sketch7.addConstraint(Sketcher.Constraint("DistanceX", -1, 1, 2, 2, Q("12 mm")))
sketch7.addConstraint(Sketcher.Constraint("DistanceY", 0, 2, -1, 1, Q("11.7 mm")))
sketch7.addConstraint(Sketcher.Constraint("DistanceY", 8, 2, -1, 1, Q("4.4 mm")))
sketch7.addConstraint(Sketcher.Constraint("DistanceY", 5, 2, 12, 2, Q("5.8 mm")))
sketch7.addConstraint(Sketcher.Constraint("DistanceY", 13, 2, 20, 2, Q("5.8 mm")))
pocket5 = body.newObject("PartDesign::Pocket", "Pocket004")
pocket5.Profile = sketch7
pocket5.Length = 4
pocket5.Reversed = True

# Sketch on YZ plane
sketch8 = body.newObject("Sketcher::SketchObject", "Sketch007")
sketch8.AttachmentSupport = (doc.getObject("YZ_Plane"), [""])
sketch8.MapMode = "FlatFace"
sketch8.AttachmentOffset = App.Placement(Vector(0, 0, 17.7), App.Rotation())
sketch8.addGeometry(Part.LineSegment(Vector(12, 11.7, 0), Vector(6.8, 11.7, 0)), False)
sketch8.addGeometry(Part.LineSegment(Vector(6.8, 11.7, 0), Vector(6.8, 10.2, 0)), False)
sketch8.addGeometry(Part.LineSegment(Vector(6.8, 10.2, 0), Vector(12, 10.2, 0)), False)
sketch8.addGeometry(Part.LineSegment(Vector(12, 10.2, 0), Vector(12, 11.7, 0)), False)
sketch8.addGeometry(Part.LineSegment(Vector(12, 8.05, 0), Vector(6.8, 8.05, 0)), False)
sketch8.addGeometry(Part.LineSegment(Vector(6.8, 8.05, 0), Vector(6.8, 6.55, 0)), False)
sketch8.addGeometry(Part.LineSegment(Vector(6.8, 6.55, 0), Vector(12, 6.55, 0)), False)
sketch8.addGeometry(Part.LineSegment(Vector(12, 6.55, 0), Vector(12, 8.05, 0)), False)
sketch8.addGeometry(Part.LineSegment(Vector(12, 4.4, 0), Vector(6.8, 4.4, 0)), False)
sketch8.addGeometry(Part.LineSegment(Vector(6.8, 4.4, 0), Vector(6.8, 2.9, 0)), False)
sketch8.addGeometry(Part.LineSegment(Vector(6.8, 2.9, 0), Vector(12, 2.9, 0)), False)
sketch8.addGeometry(Part.LineSegment(Vector(12, 2.9, 0), Vector(12, 4.4, 0)), False)
sketch8.addGeometry(Part.LineSegment(Vector(12, 0.75, 0), Vector(6.8, 0.75, 0)), False)
sketch8.addGeometry(Part.LineSegment(Vector(6.8, 0.75, 0), Vector(6.8, -0.75, 0)), False)
sketch8.addGeometry(Part.LineSegment(Vector(6.8, -0.75, 0), Vector(12, -0.75, 0)), False)
sketch8.addGeometry(Part.LineSegment(Vector(12, -0.75, 0), Vector(12, 0.75, 0)), False)
sketch8.addGeometry(Part.LineSegment(Vector(12, -2.9, 0), Vector(6.8, -2.9, 0)), False)
sketch8.addGeometry(Part.LineSegment(Vector(6.8, -2.9, 0), Vector(6.8, -4.4, 0)), False)
sketch8.addGeometry(Part.LineSegment(Vector(6.8, -4.4, 0), Vector(12, -4.4, 0)), False)
sketch8.addGeometry(Part.LineSegment(Vector(12, -4.4, 0), Vector(12, -2.9, 0)), False)
sketch8.addGeometry(Part.LineSegment(Vector(12, -6.55, 0), Vector(6.8, -6.55, 0)), False)
sketch8.addGeometry(Part.LineSegment(Vector(6.8, -6.55, 0), Vector(6.8, -8.05, 0)), False)
sketch8.addGeometry(Part.LineSegment(Vector(6.8, -8.05, 0), Vector(12, -8.05, 0)), False)
sketch8.addGeometry(Part.LineSegment(Vector(12, -8.05, 0), Vector(12, -6.55, 0)), False)
sketch8.addGeometry(Part.LineSegment(Vector(12, -10.2, 0), Vector(6.8, -10.2, 0)), False)
sketch8.addGeometry(Part.LineSegment(Vector(6.8, -10.2, 0), Vector(6.8, -11.7, 0)), False)
sketch8.addGeometry(Part.LineSegment(Vector(6.8, -11.7, 0), Vector(12, -11.7, 0)), False)
sketch8.addGeometry(Part.LineSegment(Vector(12, -11.7, 0), Vector(12, -10.2, 0)), False)
sketch8.addConstraint(Sketcher.Constraint("Coincident", 0, 2, 1, 1))
sketch8.addConstraint(Sketcher.Constraint("Coincident", 1, 2, 2, 1))
sketch8.addConstraint(Sketcher.Constraint("Coincident", 2, 2, 3, 1))
sketch8.addConstraint(Sketcher.Constraint("Coincident", 3, 2, 0, 1))
sketch8.addConstraint(Sketcher.Constraint("Coincident", 4, 2, 5, 1))
sketch8.addConstraint(Sketcher.Constraint("Coincident", 5, 2, 6, 1))
sketch8.addConstraint(Sketcher.Constraint("Coincident", 6, 2, 7, 1))
sketch8.addConstraint(Sketcher.Constraint("Coincident", 7, 2, 4, 1))
sketch8.addConstraint(Sketcher.Constraint("Coincident", 8, 2, 9, 1))
sketch8.addConstraint(Sketcher.Constraint("Coincident", 9, 2, 10, 1))
sketch8.addConstraint(Sketcher.Constraint("Coincident", 10, 2, 11, 1))
sketch8.addConstraint(Sketcher.Constraint("Coincident", 11, 2, 8, 1))
sketch8.addConstraint(Sketcher.Constraint("Coincident", 12, 2, 13, 1))
sketch8.addConstraint(Sketcher.Constraint("Coincident", 13, 2, 14, 1))
sketch8.addConstraint(Sketcher.Constraint("Coincident", 14, 2, 15, 1))
sketch8.addConstraint(Sketcher.Constraint("Coincident", 15, 2, 12, 1))
sketch8.addConstraint(Sketcher.Constraint("Coincident", 16, 2, 17, 1))
sketch8.addConstraint(Sketcher.Constraint("Coincident", 17, 2, 18, 1))
sketch8.addConstraint(Sketcher.Constraint("Coincident", 18, 2, 19, 1))
sketch8.addConstraint(Sketcher.Constraint("Coincident", 19, 2, 16, 1))
sketch8.addConstraint(Sketcher.Constraint("Coincident", 20, 2, 21, 1))
sketch8.addConstraint(Sketcher.Constraint("Coincident", 21, 2, 22, 1))
sketch8.addConstraint(Sketcher.Constraint("Coincident", 22, 2, 23, 1))
sketch8.addConstraint(Sketcher.Constraint("Coincident", 23, 2, 20, 1))
sketch8.addConstraint(Sketcher.Constraint("Coincident", 24, 2, 25, 1))
sketch8.addConstraint(Sketcher.Constraint("Coincident", 25, 2, 26, 1))
sketch8.addConstraint(Sketcher.Constraint("Coincident", 26, 2, 27, 1))
sketch8.addConstraint(Sketcher.Constraint("Coincident", 27, 2, 24, 1))
sketch8.addConstraint(Sketcher.Constraint("Horizontal", 0))
sketch8.addConstraint(Sketcher.Constraint("Vertical", 1))
sketch8.addConstraint(Sketcher.Constraint("Horizontal", 2))
sketch8.addConstraint(Sketcher.Constraint("Vertical", 3))
sketch8.addConstraint(Sketcher.Constraint("Horizontal", 4))
sketch8.addConstraint(Sketcher.Constraint("Vertical", 5))
sketch8.addConstraint(Sketcher.Constraint("Horizontal", 6))
sketch8.addConstraint(Sketcher.Constraint("Vertical", 7))
sketch8.addConstraint(Sketcher.Constraint("Horizontal", 8))
sketch8.addConstraint(Sketcher.Constraint("Vertical", 9))
sketch8.addConstraint(Sketcher.Constraint("Horizontal", 10))
sketch8.addConstraint(Sketcher.Constraint("Vertical", 11))
sketch8.addConstraint(Sketcher.Constraint("Horizontal", 12))
sketch8.addConstraint(Sketcher.Constraint("Vertical", 13))
sketch8.addConstraint(Sketcher.Constraint("Horizontal", 14))
sketch8.addConstraint(Sketcher.Constraint("Vertical", 15))
sketch8.addConstraint(Sketcher.Constraint("Horizontal", 16))
sketch8.addConstraint(Sketcher.Constraint("Vertical", 17))
sketch8.addConstraint(Sketcher.Constraint("Horizontal", 18))
sketch8.addConstraint(Sketcher.Constraint("Vertical", 19))
sketch8.addConstraint(Sketcher.Constraint("Horizontal", 20))
sketch8.addConstraint(Sketcher.Constraint("Vertical", 21))
sketch8.addConstraint(Sketcher.Constraint("Horizontal", 22))
sketch8.addConstraint(Sketcher.Constraint("Vertical", 23))
sketch8.addConstraint(Sketcher.Constraint("Horizontal", 24))
sketch8.addConstraint(Sketcher.Constraint("Vertical", 25))
sketch8.addConstraint(Sketcher.Constraint("Horizontal", 26))
sketch8.addConstraint(Sketcher.Constraint("Vertical", 27))
sketch8.addConstraint(Sketcher.Constraint("Symmetric", 9, 2, 16, 2, -1))
sketch8.addConstraint(Sketcher.Constraint("Symmetric", 11, 2, 18, 2, -1))
sketch8.addConstraint(Sketcher.Constraint("Symmetric", 5, 2, 20, 2, -1))
sketch8.addConstraint(Sketcher.Constraint("Symmetric", 7, 2, 22, 2, -1))
sketch8.addConstraint(Sketcher.Constraint("Symmetric", 1, 2, 24, 2, -1))
sketch8.addConstraint(Sketcher.Constraint("Symmetric", 3, 2, 26, 2, -1))
sketch8.addConstraint(Sketcher.Constraint("Vertical", 1, 2, 4, 2))
sketch8.addConstraint(Sketcher.Constraint("Vertical", 3, 2, 6, 2))
sketch8.addConstraint(Sketcher.Constraint("Vertical", 5, 2, 8, 2))
sketch8.addConstraint(Sketcher.Constraint("Vertical", 7, 2, 10, 2))
sketch8.addConstraint(Sketcher.Constraint("Vertical", 9, 2, 12, 2))
sketch8.addConstraint(Sketcher.Constraint("Vertical", 11, 2, 14, 2))
sketch8.addConstraint(Sketcher.Constraint("Equal", 3, 5))
sketch8.addConstraint(Sketcher.Constraint("Equal", 7, 9))
sketch8.addConstraint(Sketcher.Constraint("Equal", 11, 13))
sketch8.addConstraint(Sketcher.Constraint("DistanceX", 0, 2, 0, 1, Q("5.2 mm")))
sketch8.addConstraint(Sketcher.Constraint("DistanceY", 1, 2, 1, 1, Q("1.5 mm")))
sketch8.addConstraint(Sketcher.Constraint("DistanceX", -1, 1, 2, 2, Q("12 mm")))
sketch8.addConstraint(Sketcher.Constraint("DistanceY", -1, 1, 0, 2, Q("11.7 mm")))
sketch8.addConstraint(Sketcher.Constraint("DistanceY", -1, 1, 8, 2, Q("4.4 mm")))
sketch8.addConstraint(Sketcher.Constraint("DistanceY", 12, 2, 5, 2, Q("5.8 mm")))
sketch8.addConstraint(Sketcher.Constraint("DistanceY", 20, 2, 13, 2, Q("5.8 mm")))
pocket6 = body.newObject("PartDesign::Pocket", "Pocket005")
pocket6.Profile = sketch8
pocket6.Length = 4

# Sketch on XY plane
sketch9 = body.newObject("Sketcher::SketchObject", "Sketch008")
sketch9.AttachmentSupport = (doc.getObject("XY_Plane"), [""])
sketch9.MapMode = "FlatFace"
sketch9.AttachmentOffset = App.Placement(Vector(0, 0, -17.7), App.Rotation())
sketch9.addGeometry(Part.LineSegment(Vector(4.4, 12, 0), Vector(4.4, 6.8, 0)), False)
sketch9.addGeometry(Part.LineSegment(Vector(4.4, 6.8, 0), Vector(-4.419289, 6.8, 0)), False)
sketch9.addGeometry(Part.LineSegment(Vector(-4.419289, 6.8, 0), Vector(-4.419289, 12, 0)), False)
sketch9.addGeometry(Part.LineSegment(Vector(-4.419289, 12, 0), Vector(4.4, 12, 0)), False)
sketch9.addConstraint(Sketcher.Constraint("Coincident", 0, 2, 1, 1))
sketch9.addConstraint(Sketcher.Constraint("Coincident", 1, 2, 2, 1))
sketch9.addConstraint(Sketcher.Constraint("Coincident", 2, 2, 3, 1))
sketch9.addConstraint(Sketcher.Constraint("Coincident", 3, 2, 0, 1))
sketch9.addConstraint(Sketcher.Constraint("Vertical", 0))
sketch9.addConstraint(Sketcher.Constraint("Horizontal", 1))
sketch9.addConstraint(Sketcher.Constraint("Vertical", 2))
sketch9.addConstraint(Sketcher.Constraint("Horizontal", 3))
sketch9.addConstraint(Sketcher.Constraint("DistanceY", 0, 2, 0, 1, Q("5.2 mm")))
sketch9.addConstraint(Sketcher.Constraint("DistanceY", -1, 1, 2, 2, Q("12 mm")))
sketch9.addConstraint(Sketcher.Constraint("DistanceX", -1, 1, 0, 2, Q("4.4 mm")))
sketch9.addConstraint(Sketcher.Constraint("DistanceX", 1, 2, 1, 1, Q("8.819289 mm")))
pocket7 = body.newObject("PartDesign::Pocket", "Pocket006")
pocket7.Profile = sketch9
pocket7.Length = 6
pocket7.Reversed = True

doc.recompute()
